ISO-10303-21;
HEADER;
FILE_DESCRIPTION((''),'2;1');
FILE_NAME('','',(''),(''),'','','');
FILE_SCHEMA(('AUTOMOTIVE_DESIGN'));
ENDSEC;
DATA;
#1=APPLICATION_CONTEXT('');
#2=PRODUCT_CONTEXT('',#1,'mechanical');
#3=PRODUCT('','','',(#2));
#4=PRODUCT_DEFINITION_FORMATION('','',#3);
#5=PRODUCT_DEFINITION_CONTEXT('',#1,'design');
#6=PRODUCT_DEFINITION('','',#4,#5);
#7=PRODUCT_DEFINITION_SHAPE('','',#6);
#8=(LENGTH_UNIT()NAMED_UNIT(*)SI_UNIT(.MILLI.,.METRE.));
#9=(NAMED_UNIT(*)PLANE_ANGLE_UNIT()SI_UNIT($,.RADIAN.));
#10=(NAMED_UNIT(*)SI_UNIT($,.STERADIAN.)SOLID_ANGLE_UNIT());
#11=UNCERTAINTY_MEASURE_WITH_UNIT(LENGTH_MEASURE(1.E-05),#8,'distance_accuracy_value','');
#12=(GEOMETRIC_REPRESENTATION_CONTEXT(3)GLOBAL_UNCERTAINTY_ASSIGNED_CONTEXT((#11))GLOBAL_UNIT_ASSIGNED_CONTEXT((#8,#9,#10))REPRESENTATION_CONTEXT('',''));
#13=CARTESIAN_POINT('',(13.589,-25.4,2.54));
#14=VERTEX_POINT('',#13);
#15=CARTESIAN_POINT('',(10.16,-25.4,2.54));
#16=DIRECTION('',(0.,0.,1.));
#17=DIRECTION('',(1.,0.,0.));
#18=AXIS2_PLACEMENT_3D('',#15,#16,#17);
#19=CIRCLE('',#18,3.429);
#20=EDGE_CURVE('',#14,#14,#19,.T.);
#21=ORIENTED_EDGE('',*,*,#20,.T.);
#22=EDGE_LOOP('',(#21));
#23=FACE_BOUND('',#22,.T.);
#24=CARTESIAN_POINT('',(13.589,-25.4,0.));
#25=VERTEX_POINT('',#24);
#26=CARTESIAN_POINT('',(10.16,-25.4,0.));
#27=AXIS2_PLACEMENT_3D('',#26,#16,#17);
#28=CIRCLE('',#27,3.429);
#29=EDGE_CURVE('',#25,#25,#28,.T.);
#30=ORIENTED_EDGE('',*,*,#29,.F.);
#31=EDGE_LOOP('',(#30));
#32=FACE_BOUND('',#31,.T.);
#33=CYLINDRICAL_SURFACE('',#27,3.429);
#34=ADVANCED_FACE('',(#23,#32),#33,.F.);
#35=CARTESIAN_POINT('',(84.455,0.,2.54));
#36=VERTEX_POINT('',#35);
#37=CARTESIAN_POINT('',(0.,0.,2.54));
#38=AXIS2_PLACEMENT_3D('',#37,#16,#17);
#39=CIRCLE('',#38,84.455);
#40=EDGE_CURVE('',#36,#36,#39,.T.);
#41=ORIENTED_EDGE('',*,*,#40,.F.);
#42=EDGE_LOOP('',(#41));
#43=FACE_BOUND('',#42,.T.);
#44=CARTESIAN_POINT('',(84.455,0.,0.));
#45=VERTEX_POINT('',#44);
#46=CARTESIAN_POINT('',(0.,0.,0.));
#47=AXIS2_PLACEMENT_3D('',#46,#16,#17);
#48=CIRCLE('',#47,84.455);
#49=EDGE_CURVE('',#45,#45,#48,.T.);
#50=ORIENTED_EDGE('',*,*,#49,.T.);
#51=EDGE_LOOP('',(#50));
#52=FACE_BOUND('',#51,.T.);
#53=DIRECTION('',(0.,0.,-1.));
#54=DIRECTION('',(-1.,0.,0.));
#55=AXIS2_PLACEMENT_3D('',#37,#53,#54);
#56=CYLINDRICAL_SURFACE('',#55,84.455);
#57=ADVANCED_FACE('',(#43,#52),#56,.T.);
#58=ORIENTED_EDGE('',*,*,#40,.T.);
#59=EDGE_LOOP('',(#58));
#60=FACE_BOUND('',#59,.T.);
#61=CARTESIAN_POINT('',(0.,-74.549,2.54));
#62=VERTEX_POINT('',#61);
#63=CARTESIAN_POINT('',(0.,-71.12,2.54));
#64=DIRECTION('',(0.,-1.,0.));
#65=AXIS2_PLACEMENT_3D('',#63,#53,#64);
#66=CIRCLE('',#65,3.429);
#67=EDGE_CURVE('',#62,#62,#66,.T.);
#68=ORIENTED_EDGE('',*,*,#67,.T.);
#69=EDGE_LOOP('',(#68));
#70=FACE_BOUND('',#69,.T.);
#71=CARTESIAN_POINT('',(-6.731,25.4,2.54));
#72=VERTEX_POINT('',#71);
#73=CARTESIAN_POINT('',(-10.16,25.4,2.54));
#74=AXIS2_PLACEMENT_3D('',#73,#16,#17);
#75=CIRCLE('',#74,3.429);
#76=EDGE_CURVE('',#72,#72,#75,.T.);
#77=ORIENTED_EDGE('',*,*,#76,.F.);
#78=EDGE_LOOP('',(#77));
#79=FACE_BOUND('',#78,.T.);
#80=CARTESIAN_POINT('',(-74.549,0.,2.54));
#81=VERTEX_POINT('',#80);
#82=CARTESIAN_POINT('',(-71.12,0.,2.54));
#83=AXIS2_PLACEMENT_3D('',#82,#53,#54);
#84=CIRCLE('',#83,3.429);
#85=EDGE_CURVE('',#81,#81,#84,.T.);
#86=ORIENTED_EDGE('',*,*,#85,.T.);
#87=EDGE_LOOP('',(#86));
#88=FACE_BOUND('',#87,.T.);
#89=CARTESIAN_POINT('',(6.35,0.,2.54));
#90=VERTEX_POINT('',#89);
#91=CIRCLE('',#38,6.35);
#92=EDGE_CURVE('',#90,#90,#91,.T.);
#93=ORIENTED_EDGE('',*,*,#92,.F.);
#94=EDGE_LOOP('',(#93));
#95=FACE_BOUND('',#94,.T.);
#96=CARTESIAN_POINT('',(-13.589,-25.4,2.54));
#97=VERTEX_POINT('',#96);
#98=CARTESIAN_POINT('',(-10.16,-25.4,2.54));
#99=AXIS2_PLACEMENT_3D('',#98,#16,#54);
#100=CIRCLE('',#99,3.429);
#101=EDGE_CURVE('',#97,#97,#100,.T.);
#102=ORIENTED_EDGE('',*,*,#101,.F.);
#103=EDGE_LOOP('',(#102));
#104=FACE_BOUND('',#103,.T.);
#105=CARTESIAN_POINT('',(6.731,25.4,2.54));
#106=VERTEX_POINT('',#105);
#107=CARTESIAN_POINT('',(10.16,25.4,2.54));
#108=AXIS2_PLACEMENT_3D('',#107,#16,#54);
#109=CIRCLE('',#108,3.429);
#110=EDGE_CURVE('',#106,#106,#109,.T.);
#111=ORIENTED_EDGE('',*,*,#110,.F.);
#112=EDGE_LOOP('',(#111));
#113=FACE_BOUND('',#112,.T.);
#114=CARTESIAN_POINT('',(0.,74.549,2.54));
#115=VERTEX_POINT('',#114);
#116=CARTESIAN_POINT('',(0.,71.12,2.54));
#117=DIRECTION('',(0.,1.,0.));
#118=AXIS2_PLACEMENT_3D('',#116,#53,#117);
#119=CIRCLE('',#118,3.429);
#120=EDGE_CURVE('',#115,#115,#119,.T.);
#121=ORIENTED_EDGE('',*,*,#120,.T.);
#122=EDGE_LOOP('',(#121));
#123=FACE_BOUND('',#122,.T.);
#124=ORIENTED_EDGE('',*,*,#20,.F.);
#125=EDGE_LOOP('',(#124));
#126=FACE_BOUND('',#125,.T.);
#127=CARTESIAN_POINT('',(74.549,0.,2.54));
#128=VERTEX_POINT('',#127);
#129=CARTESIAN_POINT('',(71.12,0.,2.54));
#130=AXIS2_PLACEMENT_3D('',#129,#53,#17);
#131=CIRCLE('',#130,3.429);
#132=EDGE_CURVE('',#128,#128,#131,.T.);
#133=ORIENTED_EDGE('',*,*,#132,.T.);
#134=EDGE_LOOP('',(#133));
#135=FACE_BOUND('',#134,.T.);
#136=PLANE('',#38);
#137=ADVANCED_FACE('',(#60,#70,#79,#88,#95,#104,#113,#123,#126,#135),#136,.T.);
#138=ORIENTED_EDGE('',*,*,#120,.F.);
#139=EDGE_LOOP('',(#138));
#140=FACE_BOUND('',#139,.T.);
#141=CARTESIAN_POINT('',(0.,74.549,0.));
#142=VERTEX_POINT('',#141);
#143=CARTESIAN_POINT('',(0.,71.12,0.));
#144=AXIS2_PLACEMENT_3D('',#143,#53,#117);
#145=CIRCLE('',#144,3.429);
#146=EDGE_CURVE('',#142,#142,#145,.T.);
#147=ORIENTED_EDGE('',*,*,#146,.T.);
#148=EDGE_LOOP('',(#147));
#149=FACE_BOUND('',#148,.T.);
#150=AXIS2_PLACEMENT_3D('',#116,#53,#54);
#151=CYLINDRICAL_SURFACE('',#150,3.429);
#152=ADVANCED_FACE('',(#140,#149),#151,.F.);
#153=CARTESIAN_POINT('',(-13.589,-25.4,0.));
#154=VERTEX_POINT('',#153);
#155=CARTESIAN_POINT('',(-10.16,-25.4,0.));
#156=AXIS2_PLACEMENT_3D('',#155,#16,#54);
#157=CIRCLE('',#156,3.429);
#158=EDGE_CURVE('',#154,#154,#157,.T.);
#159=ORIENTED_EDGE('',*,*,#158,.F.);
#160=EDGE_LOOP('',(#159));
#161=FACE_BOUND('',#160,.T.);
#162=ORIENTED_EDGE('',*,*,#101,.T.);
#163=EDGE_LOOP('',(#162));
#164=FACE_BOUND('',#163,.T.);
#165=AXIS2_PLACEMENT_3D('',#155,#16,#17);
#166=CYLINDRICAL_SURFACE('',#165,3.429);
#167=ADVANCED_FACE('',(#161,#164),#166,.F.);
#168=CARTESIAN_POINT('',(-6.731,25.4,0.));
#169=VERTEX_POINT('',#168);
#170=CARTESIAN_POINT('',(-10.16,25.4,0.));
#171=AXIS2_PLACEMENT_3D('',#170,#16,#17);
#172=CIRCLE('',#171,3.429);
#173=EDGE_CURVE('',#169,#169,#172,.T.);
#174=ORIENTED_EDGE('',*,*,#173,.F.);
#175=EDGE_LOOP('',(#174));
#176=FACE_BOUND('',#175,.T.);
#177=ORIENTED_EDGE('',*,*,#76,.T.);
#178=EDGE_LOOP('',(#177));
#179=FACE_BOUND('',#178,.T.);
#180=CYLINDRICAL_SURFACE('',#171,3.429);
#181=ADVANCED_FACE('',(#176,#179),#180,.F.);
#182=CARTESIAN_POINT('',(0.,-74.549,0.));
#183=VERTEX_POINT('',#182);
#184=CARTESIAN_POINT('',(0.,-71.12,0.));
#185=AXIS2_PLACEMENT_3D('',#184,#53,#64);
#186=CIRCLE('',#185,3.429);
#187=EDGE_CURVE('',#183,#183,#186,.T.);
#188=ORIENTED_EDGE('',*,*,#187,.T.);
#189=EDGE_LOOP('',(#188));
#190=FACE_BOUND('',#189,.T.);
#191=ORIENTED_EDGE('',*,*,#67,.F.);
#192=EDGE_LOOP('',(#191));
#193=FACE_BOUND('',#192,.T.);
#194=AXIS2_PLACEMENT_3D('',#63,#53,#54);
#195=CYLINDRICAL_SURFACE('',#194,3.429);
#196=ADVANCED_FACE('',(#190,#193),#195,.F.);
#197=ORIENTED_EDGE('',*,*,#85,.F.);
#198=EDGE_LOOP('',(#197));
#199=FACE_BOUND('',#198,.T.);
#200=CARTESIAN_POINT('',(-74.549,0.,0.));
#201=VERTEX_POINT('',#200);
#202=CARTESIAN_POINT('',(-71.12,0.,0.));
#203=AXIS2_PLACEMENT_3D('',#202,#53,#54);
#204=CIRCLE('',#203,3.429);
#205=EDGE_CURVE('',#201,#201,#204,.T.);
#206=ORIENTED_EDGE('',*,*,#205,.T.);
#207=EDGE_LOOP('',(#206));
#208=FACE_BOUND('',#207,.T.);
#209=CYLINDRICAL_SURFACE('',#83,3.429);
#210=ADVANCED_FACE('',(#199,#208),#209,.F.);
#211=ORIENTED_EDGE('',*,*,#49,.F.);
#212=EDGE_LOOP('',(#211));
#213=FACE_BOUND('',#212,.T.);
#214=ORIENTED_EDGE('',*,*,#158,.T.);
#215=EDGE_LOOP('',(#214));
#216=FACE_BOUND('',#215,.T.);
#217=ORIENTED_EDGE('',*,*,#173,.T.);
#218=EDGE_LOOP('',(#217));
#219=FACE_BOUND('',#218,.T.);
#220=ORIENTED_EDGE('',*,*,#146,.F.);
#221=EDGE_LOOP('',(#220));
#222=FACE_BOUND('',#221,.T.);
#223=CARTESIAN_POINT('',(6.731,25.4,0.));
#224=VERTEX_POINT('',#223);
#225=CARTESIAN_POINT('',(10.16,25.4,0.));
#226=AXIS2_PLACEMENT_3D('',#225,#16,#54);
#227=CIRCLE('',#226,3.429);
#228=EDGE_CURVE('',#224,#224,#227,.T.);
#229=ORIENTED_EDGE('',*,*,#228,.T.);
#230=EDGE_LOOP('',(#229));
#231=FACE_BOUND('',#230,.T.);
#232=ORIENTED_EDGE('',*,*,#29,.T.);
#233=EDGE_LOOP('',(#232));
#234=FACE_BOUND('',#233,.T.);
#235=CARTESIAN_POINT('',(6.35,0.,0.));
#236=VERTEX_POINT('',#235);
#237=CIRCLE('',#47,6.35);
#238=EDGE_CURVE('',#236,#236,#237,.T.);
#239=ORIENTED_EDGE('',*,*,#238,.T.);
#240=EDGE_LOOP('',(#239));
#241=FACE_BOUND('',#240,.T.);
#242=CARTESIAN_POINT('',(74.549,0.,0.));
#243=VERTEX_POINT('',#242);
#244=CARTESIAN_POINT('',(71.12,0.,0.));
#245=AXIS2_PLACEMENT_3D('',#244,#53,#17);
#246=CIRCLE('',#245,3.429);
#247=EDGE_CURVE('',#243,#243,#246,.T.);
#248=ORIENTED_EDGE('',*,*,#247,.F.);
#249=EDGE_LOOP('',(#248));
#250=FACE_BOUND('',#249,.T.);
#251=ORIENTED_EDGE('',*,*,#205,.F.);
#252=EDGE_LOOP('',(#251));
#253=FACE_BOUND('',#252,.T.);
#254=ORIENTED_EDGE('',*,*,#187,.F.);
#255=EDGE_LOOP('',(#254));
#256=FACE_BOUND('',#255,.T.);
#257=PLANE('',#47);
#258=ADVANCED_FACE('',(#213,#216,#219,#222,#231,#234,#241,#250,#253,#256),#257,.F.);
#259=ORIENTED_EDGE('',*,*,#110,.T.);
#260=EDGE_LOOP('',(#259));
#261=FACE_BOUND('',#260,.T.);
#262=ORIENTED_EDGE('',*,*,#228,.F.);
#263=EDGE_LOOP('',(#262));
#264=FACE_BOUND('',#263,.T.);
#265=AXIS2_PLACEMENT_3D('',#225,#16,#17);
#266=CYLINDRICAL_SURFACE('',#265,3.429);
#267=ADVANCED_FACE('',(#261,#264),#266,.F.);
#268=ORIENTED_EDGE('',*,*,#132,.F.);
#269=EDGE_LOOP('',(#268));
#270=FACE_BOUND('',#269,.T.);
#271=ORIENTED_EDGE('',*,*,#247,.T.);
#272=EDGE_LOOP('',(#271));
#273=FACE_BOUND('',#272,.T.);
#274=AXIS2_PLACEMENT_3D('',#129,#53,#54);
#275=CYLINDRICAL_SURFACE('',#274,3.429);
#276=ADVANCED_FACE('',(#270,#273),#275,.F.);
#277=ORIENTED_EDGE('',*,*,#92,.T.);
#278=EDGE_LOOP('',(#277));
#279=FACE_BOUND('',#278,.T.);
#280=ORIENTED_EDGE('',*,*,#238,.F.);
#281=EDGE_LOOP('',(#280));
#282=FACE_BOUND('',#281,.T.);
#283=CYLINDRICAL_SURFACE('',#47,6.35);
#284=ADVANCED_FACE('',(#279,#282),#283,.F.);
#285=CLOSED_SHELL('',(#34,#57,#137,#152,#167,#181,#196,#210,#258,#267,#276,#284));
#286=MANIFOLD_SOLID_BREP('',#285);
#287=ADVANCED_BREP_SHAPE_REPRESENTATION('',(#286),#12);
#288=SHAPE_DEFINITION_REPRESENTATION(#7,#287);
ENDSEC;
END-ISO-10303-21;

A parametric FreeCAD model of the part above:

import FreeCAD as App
import Part
import Sketcher
Q = App.Units.Quantity

doc = App.newDocument("Part")
params = doc.addObject("Spreadsheet::Sheet", "Params")
for row, (alias, value) in enumerate([
    ("sketch1_diameter", "6.65 in"),
    ("pad1_length", "0.1 in"),
    ("sketch2_diameter", "0.27 in"),
    ("pocket1_length", "0.1 in"),
    ("sketch3_diameter", "0.5 in"),
    ("pocket2_length", "0.1 in"),
    ("sketch4_diameter", "0.27 in"),
], start=1):
    params.set(f"A{row}", alias)
    params.set(f"B{row}", "=" + value)
    params.setAlias(f"B{row}", alias)

body = doc.addObject("PartDesign::Body", "Body")

# Sketch on XY plane
sketch1 = body.newObject("Sketcher::SketchObject", "Sketch")
sketch1.AttachmentSupport = (doc.getObject("XY_Plane"), [""])
sketch1.MapMode = "FlatFace"
sketch1.addGeometry(Part.Circle(App.Vector(0, 0, 0), App.Vector(0, 0, 1), 84), False)
sketch1.addConstraint([
    Sketcher.Constraint("Coincident", 0, 3, -1, 1),
    Sketcher.Constraint("Diameter", 0, Q("6.65 in")),
])
sketch1.setExpression("Constraints[1]", "Params.sketch1_diameter")
pad1 = body.newObject("PartDesign::Pad", "Pad")
pad1.Profile = sketch1
pad1.setExpression("Length", "Params.pad1_length")

# Sketch on XY plane
sketch2 = body.newObject("Sketcher::SketchObject", "Sketch001")
sketch2.AttachmentSupport = (doc.getObject("XY_Plane"), [""])
sketch2.MapMode = "FlatFace"
sketch2.AttachmentOffset = App.Placement(App.Vector(0, 0, 0.1 * 25.4), App.Rotation())
sketch2.addGeometry([
    Part.Circle(App.Vector(-10.2, 25.4, 0), App.Vector(0, 0, 1), 3.4),
    Part.Circle(App.Vector(10.2, 25.4, 0), App.Vector(0, 0, 1), 3.4),
    Part.Circle(App.Vector(10.2, -25.4, 0), App.Vector(0, 0, 1), 3.4),
    Part.Circle(App.Vector(-10.2, -25.4, 0), App.Vector(0, 0, 1), 3.4),
], False)
sketch2.addConstraint([
    Sketcher.Constraint("Equal", 0, 1),
    Sketcher.Constraint("Equal", 1, 2),
    Sketcher.Constraint("Equal", 2, 3),
    Sketcher.Constraint("Symmetric", 0, 3, 2, 3, -1, 1),
    Sketcher.Constraint("Symmetric", 1, 3, 3, 3, -1, 1),
    Sketcher.Constraint("Symmetric", 0, 3, 1, 3, -2),
    Sketcher.Constraint("Diameter", 0, Q("0.27 in")),
    Sketcher.Constraint("DistanceY", -1, 1, 0, 3, Q("1 in")),
    Sketcher.Constraint("DistanceX", 0, 3, -1, 1, Q("0.4 in")),
])
sketch2.setExpression("Constraints[6]", "Params.sketch2_diameter")
pocket1 = body.newObject("PartDesign::Pocket", "Pocket")
pocket1.Profile = sketch2
pocket1.setExpression("Length", "Params.pocket1_length")

# Sketch on XY plane
sketch3 = body.newObject("Sketcher::SketchObject", "Sketch002")
sketch3.AttachmentSupport = (doc.getObject("XY_Plane"), [""])
sketch3.MapMode = "FlatFace"
sketch3.AttachmentOffset = App.Placement(App.Vector(0, 0, 0.1 * 25.4), App.Rotation())
sketch3.addGeometry(Part.Circle(App.Vector(0, 0, 0), App.Vector(0, 0, 1), 6), False)
sketch3.addConstraint([
    Sketcher.Constraint("Coincident", 0, 3, -1, 1),
    Sketcher.Constraint("Diameter", 0, Q("0.5 in")),
])
sketch3.setExpression("Constraints[1]", "Params.sketch3_diameter")
pocket2 = body.newObject("PartDesign::Pocket", "Pocket001")
pocket2.Profile = sketch3
pocket2.setExpression("Length", "Params.pocket2_length")

# Sketch on XY plane
sketch4 = body.newObject("Sketcher::SketchObject", "Sketch003")
sketch4.AttachmentSupport = (doc.getObject("XY_Plane"), [""])
sketch4.MapMode = "FlatFace"
sketch4.addGeometry(Part.Circle(App.Vector(-71.1, 0, 0), App.Vector(0, 0, 1), 3.4), False)
sketch4.addConstraint([
    Sketcher.Constraint("PointOnObject", 0, 3, -1),
    Sketcher.Constraint("Diameter", 0, Q("0.27 in")),
    Sketcher.Constraint("DistanceX", 0, 3, -1, 1, Q("2.8 in")),
])
sketch4.setExpression("Constraints[1]", "Params.sketch4_diameter")
pocket3 = body.newObject("PartDesign::Pocket", "Pocket002")
pocket3.Profile = sketch4
pocket3.Type = "ThroughAll"
pocket3.Reversed = True
doc.recompute()

polarpattern = body.newObject("PartDesign::PolarPattern", "PolarPattern")
polarpattern.Originals = [pocket3]
polarpattern.Axis = (doc.getObject("Z_Axis"), [""])
polarpattern.Angle = 360
polarpattern.Occurrences = 4
body.Tip = polarpattern

doc.recompute()
